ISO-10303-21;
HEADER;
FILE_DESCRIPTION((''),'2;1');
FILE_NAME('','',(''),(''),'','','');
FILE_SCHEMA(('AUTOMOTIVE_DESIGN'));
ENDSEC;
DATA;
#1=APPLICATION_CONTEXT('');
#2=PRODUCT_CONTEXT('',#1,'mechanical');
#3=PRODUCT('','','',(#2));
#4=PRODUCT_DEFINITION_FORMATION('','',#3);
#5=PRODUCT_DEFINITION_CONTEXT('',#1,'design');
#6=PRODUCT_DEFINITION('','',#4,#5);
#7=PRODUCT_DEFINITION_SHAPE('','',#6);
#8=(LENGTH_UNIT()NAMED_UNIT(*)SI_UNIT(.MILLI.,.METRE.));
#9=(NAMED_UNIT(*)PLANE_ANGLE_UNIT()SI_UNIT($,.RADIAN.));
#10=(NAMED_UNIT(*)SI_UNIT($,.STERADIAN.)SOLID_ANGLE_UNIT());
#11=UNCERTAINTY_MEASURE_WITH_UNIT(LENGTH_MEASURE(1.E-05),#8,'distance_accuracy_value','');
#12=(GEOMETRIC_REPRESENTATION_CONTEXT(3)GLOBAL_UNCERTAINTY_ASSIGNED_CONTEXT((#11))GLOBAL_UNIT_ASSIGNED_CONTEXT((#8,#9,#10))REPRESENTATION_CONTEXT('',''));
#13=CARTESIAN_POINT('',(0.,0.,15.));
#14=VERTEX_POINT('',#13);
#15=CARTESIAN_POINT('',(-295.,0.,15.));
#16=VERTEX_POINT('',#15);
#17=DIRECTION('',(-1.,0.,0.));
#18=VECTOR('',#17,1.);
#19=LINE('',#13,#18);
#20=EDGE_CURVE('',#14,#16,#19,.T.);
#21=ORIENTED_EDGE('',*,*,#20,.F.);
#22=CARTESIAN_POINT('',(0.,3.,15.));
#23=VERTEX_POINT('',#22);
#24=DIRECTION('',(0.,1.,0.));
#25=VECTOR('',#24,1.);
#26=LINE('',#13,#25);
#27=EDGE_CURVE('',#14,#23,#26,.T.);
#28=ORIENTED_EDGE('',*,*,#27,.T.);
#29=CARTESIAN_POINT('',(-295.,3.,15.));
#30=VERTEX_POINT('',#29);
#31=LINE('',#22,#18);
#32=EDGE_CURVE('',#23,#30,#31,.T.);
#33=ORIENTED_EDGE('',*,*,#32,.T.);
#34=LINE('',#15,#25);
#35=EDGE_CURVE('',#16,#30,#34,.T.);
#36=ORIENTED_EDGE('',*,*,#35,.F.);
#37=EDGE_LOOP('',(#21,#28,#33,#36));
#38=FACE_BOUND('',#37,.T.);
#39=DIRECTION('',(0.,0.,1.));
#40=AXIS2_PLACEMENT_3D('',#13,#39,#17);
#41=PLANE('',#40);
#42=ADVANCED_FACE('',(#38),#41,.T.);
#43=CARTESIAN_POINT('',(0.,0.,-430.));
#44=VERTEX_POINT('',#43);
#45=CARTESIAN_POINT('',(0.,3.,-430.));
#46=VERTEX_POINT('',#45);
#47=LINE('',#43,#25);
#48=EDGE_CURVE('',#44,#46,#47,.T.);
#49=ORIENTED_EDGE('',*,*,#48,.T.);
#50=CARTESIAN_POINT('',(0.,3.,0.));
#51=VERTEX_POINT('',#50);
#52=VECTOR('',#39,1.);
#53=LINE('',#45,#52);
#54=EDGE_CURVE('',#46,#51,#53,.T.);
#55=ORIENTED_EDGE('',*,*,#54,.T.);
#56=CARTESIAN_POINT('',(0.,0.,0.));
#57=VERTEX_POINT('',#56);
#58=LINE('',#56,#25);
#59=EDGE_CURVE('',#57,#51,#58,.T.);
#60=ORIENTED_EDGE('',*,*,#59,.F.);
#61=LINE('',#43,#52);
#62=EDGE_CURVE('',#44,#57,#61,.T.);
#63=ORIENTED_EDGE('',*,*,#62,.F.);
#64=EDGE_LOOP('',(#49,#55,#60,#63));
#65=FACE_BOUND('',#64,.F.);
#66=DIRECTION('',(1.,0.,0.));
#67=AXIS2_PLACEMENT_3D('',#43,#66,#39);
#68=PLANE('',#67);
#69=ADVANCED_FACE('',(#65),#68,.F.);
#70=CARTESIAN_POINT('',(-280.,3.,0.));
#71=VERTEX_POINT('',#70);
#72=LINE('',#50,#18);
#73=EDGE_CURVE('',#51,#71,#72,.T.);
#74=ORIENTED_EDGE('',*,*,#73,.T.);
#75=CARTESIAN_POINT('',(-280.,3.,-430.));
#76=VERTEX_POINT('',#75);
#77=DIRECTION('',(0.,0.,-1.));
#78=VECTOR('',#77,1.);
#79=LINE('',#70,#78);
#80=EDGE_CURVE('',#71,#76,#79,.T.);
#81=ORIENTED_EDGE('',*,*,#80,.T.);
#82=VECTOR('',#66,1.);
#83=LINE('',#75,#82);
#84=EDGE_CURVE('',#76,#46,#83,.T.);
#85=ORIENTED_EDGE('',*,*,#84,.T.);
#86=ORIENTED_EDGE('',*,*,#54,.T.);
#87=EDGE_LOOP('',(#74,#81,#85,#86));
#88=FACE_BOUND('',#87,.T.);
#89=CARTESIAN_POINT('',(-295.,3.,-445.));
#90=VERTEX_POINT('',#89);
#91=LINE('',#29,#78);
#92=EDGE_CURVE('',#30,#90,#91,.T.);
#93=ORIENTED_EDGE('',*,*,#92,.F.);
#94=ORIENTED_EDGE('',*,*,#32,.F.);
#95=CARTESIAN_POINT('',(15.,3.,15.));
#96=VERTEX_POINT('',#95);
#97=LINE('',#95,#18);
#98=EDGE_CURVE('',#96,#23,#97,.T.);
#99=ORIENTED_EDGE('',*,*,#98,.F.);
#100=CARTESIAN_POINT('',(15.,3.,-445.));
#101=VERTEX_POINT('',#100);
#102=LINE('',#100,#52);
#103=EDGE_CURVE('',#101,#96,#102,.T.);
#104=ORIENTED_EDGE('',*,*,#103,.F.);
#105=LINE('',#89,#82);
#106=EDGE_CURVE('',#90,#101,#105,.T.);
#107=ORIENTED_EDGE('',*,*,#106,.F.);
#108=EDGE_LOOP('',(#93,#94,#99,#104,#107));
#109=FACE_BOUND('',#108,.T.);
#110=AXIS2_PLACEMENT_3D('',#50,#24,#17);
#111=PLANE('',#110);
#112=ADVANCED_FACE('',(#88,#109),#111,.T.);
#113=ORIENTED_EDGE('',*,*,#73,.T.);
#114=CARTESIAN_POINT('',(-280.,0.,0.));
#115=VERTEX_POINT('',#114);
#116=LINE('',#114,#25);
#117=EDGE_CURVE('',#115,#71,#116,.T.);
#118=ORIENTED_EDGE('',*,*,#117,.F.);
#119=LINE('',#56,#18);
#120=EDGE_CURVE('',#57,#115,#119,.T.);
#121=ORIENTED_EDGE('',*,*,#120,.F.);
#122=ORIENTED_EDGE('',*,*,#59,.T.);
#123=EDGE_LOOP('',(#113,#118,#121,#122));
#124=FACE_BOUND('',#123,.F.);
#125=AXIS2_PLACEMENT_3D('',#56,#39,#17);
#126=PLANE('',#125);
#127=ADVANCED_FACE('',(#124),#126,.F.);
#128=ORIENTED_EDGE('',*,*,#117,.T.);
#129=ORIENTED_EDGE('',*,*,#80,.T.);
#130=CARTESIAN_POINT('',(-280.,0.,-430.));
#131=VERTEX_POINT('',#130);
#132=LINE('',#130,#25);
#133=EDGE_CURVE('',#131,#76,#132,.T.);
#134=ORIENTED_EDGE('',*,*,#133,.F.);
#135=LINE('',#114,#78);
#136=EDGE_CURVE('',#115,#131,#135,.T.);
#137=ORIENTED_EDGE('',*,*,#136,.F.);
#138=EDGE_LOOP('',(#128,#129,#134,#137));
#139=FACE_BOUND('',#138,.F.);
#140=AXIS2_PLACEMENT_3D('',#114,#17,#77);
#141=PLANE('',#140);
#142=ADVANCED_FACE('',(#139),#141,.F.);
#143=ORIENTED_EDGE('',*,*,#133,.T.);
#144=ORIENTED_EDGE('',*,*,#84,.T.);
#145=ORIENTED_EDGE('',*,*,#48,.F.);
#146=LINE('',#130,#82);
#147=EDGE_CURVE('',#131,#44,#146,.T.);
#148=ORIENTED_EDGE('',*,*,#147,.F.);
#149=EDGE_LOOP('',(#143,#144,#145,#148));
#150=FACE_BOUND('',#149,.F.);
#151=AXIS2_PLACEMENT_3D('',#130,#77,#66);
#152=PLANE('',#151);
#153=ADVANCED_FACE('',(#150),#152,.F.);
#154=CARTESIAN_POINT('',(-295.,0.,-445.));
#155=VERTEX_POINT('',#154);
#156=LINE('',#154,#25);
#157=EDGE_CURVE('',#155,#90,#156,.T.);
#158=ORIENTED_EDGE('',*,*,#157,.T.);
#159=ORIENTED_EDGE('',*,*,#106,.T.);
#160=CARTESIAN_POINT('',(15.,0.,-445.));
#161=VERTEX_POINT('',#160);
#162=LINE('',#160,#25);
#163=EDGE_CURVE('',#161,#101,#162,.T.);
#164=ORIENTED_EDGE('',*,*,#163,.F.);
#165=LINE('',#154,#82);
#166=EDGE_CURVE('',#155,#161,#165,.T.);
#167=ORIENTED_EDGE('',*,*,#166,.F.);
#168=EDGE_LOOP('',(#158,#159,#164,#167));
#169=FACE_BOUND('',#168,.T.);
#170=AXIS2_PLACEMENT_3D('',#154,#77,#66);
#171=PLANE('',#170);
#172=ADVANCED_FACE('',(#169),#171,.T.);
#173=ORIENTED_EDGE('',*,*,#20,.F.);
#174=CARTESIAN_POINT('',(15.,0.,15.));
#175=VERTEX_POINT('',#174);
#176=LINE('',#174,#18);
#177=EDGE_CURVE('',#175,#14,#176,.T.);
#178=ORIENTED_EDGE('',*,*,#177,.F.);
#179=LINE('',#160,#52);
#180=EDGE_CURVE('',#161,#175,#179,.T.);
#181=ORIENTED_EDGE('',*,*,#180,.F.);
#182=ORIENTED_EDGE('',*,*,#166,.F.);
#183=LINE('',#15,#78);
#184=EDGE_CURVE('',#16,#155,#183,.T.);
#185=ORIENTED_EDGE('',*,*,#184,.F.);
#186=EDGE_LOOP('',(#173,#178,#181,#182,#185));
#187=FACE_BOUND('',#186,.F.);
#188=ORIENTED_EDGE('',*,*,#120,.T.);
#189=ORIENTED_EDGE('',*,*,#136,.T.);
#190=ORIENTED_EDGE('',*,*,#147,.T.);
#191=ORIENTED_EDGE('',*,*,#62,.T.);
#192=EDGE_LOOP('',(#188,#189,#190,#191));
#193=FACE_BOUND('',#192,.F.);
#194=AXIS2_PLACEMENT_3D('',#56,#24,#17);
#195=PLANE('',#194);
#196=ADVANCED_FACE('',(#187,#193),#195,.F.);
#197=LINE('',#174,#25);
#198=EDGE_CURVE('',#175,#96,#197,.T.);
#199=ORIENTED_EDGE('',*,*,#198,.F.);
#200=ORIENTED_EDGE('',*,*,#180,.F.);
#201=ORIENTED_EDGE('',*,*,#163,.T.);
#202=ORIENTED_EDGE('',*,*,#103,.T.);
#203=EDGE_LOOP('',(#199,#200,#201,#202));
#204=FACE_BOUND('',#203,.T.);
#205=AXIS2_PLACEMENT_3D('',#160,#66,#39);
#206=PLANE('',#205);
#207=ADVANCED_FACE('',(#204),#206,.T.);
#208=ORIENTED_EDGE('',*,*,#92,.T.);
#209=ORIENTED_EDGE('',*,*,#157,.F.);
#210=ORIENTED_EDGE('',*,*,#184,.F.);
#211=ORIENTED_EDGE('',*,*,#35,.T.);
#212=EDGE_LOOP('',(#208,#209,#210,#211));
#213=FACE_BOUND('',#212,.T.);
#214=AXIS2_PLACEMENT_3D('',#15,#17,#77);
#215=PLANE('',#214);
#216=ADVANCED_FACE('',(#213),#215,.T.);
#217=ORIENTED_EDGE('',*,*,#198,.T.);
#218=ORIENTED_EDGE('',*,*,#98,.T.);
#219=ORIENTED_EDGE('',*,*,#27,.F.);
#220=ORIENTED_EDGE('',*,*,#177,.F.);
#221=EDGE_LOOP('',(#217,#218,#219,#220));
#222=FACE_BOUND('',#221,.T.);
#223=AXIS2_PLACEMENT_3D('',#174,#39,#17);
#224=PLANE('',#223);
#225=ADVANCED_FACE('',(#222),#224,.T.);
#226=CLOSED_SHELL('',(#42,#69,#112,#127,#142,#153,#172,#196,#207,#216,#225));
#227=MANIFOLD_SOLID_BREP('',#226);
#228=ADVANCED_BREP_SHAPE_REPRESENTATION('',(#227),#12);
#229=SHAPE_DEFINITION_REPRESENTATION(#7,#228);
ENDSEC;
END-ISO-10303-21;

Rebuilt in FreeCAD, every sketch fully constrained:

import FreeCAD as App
import Part
import Sketcher

V = App.Vector

doc = App.newDocument("Part")
body = doc.addObject("PartDesign::Body", "Body")

# Sketch on XZ plane
sketch1 = doc.addObject("Sketcher::SketchObject", "Sketch")
body.addObject(sketch1)
sketch1.AttachmentSupport = (doc.XZ_Plane, [""])
sketch1.MapMode = "FlatFace"
sketch1.addGeometry(Part.LineSegment(V(-295, 15, 0), V(15, 15, 0)), False)
sketch1.addGeometry(Part.LineSegment(V(15, 15, 0), V(15, -445, 0)), False)
sketch1.addGeometry(Part.LineSegment(V(15, -445, 0), V(-295, -445, 0)), False)
sketch1.addGeometry(Part.LineSegment(V(-295, -445, 0), V(-295, 15, 0)), False)
sketch1.addGeometry(Part.LineSegment(V(0, -430, 0), V(0, 0, 0)), False)
sketch1.addGeometry(Part.LineSegment(V(0, 0, 0), V(-280, 0, 0)), False)
sketch1.addGeometry(Part.LineSegment(V(-280, 0, 0), V(-280, -430, 0)), False)
sketch1.addGeometry(Part.LineSegment(V(-280, -430, 0), V(0, -430, 0)), False)
sketch1.addConstraint(Sketcher.Constraint("Coincident", 0, 2, 1, 1))
sketch1.addConstraint(Sketcher.Constraint("Coincident", 1, 2, 2, 1))
sketch1.addConstraint(Sketcher.Constraint("Coincident", 2, 2, 3, 1))
sketch1.addConstraint(Sketcher.Constraint("Coincident", 3, 2, 0, 1))
sketch1.addConstraint(Sketcher.Constraint("Coincident", 4, 2, 5, 1))
sketch1.addConstraint(Sketcher.Constraint("Coincident", 5, 2, 6, 1))
sketch1.addConstraint(Sketcher.Constraint("Coincident", 6, 2, 7, 1))
sketch1.addConstraint(Sketcher.Constraint("Coincident", 7, 2, 4, 1))
sketch1.addConstraint(Sketcher.Constraint("Horizontal", 0))
sketch1.addConstraint(Sketcher.Constraint("Vertical", 1))
sketch1.addConstraint(Sketcher.Constraint("Horizontal", 2))
sketch1.addConstraint(Sketcher.Constraint("Vertical", 3))
sketch1.addConstraint(Sketcher.Constraint("Vertical", 4))
sketch1.addConstraint(Sketcher.Constraint("Horizontal", 5))
sketch1.addConstraint(Sketcher.Constraint("Vertical", 6))
sketch1.addConstraint(Sketcher.Constraint("Horizontal", 7))
sketch1.addConstraint(Sketcher.Constraint("Coincident", 4, 2, -1, 1))
sketch1.addConstraint(Sketcher.Constraint("DistanceX", 0, 1, 0, 2, 310.0))
sketch1.addConstraint(Sketcher.Constraint("DistanceX", 5, 2, 5, 1, 280.0))
sketch1.addConstraint(Sketcher.Constraint("DistanceY", 1, 2, 1, 1, 460.0))
sketch1.addConstraint(Sketcher.Constraint("DistanceY", 4, 1, 4, 2, 430.0))
sketch1.addConstraint(Sketcher.Constraint("DistanceX", -1, 1, 0, 2, 15.0))
sketch1.addConstraint(Sketcher.Constraint("DistanceY", -1, 1, 0, 2, 15.0))
pad1 = doc.addObject("PartDesign::Pad", "Pad")
body.addObject(pad1)
pad1.Profile = sketch1
pad1.Length = 3
pad1.Reversed = True

doc.recompute()
